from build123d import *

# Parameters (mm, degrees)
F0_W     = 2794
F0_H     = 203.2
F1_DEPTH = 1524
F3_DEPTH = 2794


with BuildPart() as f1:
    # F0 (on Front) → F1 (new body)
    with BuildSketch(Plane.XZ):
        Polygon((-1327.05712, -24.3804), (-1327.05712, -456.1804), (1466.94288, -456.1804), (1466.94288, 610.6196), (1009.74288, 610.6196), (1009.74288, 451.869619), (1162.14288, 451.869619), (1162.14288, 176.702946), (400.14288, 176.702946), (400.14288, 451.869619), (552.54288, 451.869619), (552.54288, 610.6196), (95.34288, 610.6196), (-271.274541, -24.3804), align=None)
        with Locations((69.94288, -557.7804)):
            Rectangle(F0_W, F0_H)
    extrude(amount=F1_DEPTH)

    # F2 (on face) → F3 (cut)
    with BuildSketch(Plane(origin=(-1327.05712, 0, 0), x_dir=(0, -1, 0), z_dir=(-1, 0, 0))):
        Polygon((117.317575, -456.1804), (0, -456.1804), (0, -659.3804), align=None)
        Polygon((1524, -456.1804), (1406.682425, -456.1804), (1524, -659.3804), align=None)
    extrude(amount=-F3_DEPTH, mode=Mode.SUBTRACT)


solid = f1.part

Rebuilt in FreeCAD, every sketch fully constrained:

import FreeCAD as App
import Part
import Sketcher
from FreeCAD import Vector
Q = App.Units.Quantity


def add_polygon(sketch, points):
    """Adds a closed chain of lines whose ends are joined by coincident constraints."""
    first, n = sketch.GeometryCount, len(points)
    for a, b in zip(points, points[1:] + points[:1]):
        sketch.addGeometry(Part.LineSegment(App.Vector(*a, 0), App.Vector(*b, 0)), False)
    for i in range(n):
        sketch.addConstraint(Sketcher.Constraint("Coincident", first + i, 2, first + (i + 1) % n, 1))

doc = App.newDocument("Part")
params = doc.addObject("Spreadsheet::Sheet", "Params")
for row, (alias, value) in enumerate([
    ("sketch1_width", "110 in"),
    ("sketch1_width2", "18 in"),
    ("sketch1_width3", "6 in"),
    ("sketch1_width4", "30 in"),
    ("sketch1_height", "25 in"),
    ("pad1_length", "60 in"),
    ("sketch2_height", "8 in"),
    ("pocket1_length", "110 in"),
], start=1):
    params.set(f"A{row}", alias)
    params.set(f"B{row}", "=" + value)
    params.setAlias(f"B{row}", alias)

body = doc.addObject("PartDesign::Body", "Body")

sketch1 = body.newObject("Sketcher::SketchObject", "Sketch")
sketch1.AttachmentSupport = (doc.getObject("XZ_Plane"), [""])
sketch1.MapMode = "FlatFace"
add_polygon(sketch1, [(-1327, -24), (-1327, -659), (1467, -659), (1467, 611), (1010, 611), (1010, 452), (1162, 452), (1162, 177), (400, 177), (400, 452), (553, 452), (553, 611), (95, 611), (-271, -24)])
sketch1.addConstraint([
    Sketcher.Constraint("Vertical", 0),
    Sketcher.Constraint("Horizontal", 1),
    Sketcher.Constraint("Vertical", 2),
    Sketcher.Constraint("Horizontal", 3),
    Sketcher.Constraint("Vertical", 4),
    Sketcher.Constraint("Horizontal", 5),
    Sketcher.Constraint("Vertical", 6),
    Sketcher.Constraint("Horizontal", 7),
    Sketcher.Constraint("Vertical", 8),
    Sketcher.Constraint("Horizontal", 9),
    Sketcher.Constraint("Vertical", 10),
    Sketcher.Constraint("Horizontal", 11),
    Sketcher.Constraint("Horizontal", 13),
    Sketcher.Constraint("Horizontal", 5, 2, 8, 2),
    Sketcher.Constraint("Horizontal", 3, 2, 10, 2),
    Sketcher.Constraint("Equal", 5, 9),
    Sketcher.Constraint("Equal", 3, 11),
    Sketcher.Constraint("DistanceX", 1, 1, 1, 2, Q("110 in")),
    Sketcher.Constraint("DistanceX", 3, 2, 3, 1, Q("18 in")),
    Sketcher.Constraint("DistanceX", 5, 1, 5, 2, Q("6 in")),
    Sketcher.Constraint("DistanceX", 7, 2, 7, 1, Q("30 in")),
    Sketcher.Constraint("DistanceY", 0, 2, 0, 1, Q("25 in")),
    Sketcher.Constraint("DistanceY", 2, 1, 2, 2, Q("50 in")),
    Sketcher.Constraint("Angle", 12, Q("-120 deg")),
    Sketcher.Constraint("DistanceX", 12, 2, -1, 1, Q("10.6801 in")),
    Sketcher.Constraint("DistanceY", 4, 2, 4, 1, Q("158.749981 mm")),
    Sketcher.Constraint("DistanceY", 0, 2, -1, 1, Q("659.3804 mm")),
    Sketcher.Constraint("DistanceY", 6, 2, 6, 1, Q("275.166673 mm")),
])
sketch1.setExpression("Constraints[31]", "Params.sketch1_width")
sketch1.setExpression("Constraints[32]", "Params.sketch1_width2")
sketch1.setExpression("Constraints[33]", "Params.sketch1_width3")
sketch1.setExpression("Constraints[34]", "Params.sketch1_width4")
sketch1.setExpression("Constraints[35]", "Params.sketch1_height")
pad1 = body.newObject("PartDesign::Pad", "Pad")
pad1.Profile = sketch1
pad1.setExpression("Length", "Params.pad1_length")

sketch2 = body.newObject("Sketcher::SketchObject", "Sketch001")
sketch2.AttachmentSupport = (doc.getObject("YZ_Plane"), [""])
sketch2.MapMode = "FlatFace"
sketch2.AttachmentOffset = App.Placement(Vector(0, 0, -1327.05712), App.Rotation())
add_polygon(sketch2, [(-117, -456), (0, -456), (0, -659)])
add_polygon(sketch2, [(-1524, -456), (-1407, -456), (-1524, -659)])
sketch2.addConstraint([
    Sketcher.Constraint("Horizontal", 0),
    Sketcher.Constraint("Vertical", 1),
    Sketcher.Constraint("Horizontal", 3),
    Sketcher.Constraint("Vertical", 5),
    Sketcher.Constraint("PointOnObject", 0, 2, -2),
    Sketcher.Constraint("Horizontal", 2, 2, 3, 2),
    Sketcher.Constraint("Horizontal", 1, 2, 4, 2),
    Sketcher.Constraint("Equal", 0, 3),
    Sketcher.Constraint("DistanceY", 1, 2, 1, 1, Q("8 in")),
    Sketcher.Constraint("DistanceX", 4, 2, -1, 1, Q("60 in")),
    Sketcher.Constraint("Angle", 2, Q("120 deg")),
    Sketcher.Constraint("DistanceY", 0, 2, -1, 1, Q("456.1804 mm")),
])
sketch2.setExpression("Constraints[14]", "Params.sketch2_height")
pocket1 = body.newObject("PartDesign::Pocket", "Pocket")
pocket1.Profile = sketch2
pocket1.setExpression("Length", "Params.pocket1_length")
pocket1.Reversed = True

doc.recompute()
